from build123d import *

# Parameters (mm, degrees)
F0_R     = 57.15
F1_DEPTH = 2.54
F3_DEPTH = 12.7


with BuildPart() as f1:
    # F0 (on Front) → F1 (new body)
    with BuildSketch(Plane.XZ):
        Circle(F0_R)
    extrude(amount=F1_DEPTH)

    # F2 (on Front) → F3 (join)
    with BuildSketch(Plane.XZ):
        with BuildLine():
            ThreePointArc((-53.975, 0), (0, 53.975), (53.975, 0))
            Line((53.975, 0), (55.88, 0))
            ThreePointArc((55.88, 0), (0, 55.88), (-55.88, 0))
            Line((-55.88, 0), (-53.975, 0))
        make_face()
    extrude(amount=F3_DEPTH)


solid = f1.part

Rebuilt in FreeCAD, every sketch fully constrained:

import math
import FreeCAD as App
import Part
import Sketcher

V = App.Vector
Q = App.Units.Quantity

doc = App.newDocument("Part")
body = doc.addObject("PartDesign::Body", "Body")

# Sketch on XZ plane
sketch1 = body.newObject("Sketcher::SketchObject", "Sketch")
sketch1.AttachmentSupport = (doc.getObject("XZ_Plane"), [""])
sketch1.MapMode = "FlatFace"
sketch1.addGeometry(Part.Circle(V(0, 0, 0), V(0, 0, 1), 57.15), False)
sketch1.addConstraint([
    Sketcher.Constraint("Coincident", 0, 3, -1, 1),
    Sketcher.Constraint("Diameter", 0, Q("4.5 in")),
])
pad1 = body.newObject("PartDesign::Pad", "Pad")
pad1.Profile = sketch1
pad1.Length = Q("0.1 in")

# Sketch on XZ plane
sketch2 = body.newObject("Sketcher::SketchObject", "Sketch001")
sketch2.AttachmentSupport = (doc.getObject("XZ_Plane"), [""])
sketch2.MapMode = "FlatFace"
sketch2.addGeometry([
    Part.ArcOfCircle(Part.Circle(V(0, 0, 0), V(0, 0, 1), 53.975), math.radians(0), math.radians(180)),
    Part.LineSegment(V(53.975, 0, 0), V(55.88, 0, 0)),
    Part.ArcOfCircle(Part.Circle(V(0, 0, 0), V(0, 0, 1), 55.88), math.radians(0), math.radians(180)),
    Part.LineSegment(V(-55.88, 0, 0), V(-53.975, 0, 0)),
], False)
sketch2.addConstraint([
    Sketcher.Constraint("Coincident", 0, 1, 1, 1),
    Sketcher.Constraint("Coincident", 1, 2, 2, 1),
    Sketcher.Constraint("Coincident", 2, 2, 3, 1),
    Sketcher.Constraint("Coincident", 3, 2, 0, 2),
    Sketcher.Constraint("Horizontal", 1),
    Sketcher.Constraint("Horizontal", 3),
    Sketcher.Constraint("Coincident", 0, 3, -1, 1),
    Sketcher.Constraint("Coincident", 2, 3, -1, 1),
    Sketcher.Constraint("PointOnObject", 0, 1, -1),
    Sketcher.Constraint("PointOnObject", 2, 2, -1),
    Sketcher.Constraint("Radius", 2, Q("2.2 in")),
    Sketcher.Constraint("Radius", 0, Q("2.125 in")),
])
pad2 = body.newObject("PartDesign::Pad", "Pad001")
pad2.Profile = sketch2
pad2.Length = Q("0.5 in")

doc.recompute()
